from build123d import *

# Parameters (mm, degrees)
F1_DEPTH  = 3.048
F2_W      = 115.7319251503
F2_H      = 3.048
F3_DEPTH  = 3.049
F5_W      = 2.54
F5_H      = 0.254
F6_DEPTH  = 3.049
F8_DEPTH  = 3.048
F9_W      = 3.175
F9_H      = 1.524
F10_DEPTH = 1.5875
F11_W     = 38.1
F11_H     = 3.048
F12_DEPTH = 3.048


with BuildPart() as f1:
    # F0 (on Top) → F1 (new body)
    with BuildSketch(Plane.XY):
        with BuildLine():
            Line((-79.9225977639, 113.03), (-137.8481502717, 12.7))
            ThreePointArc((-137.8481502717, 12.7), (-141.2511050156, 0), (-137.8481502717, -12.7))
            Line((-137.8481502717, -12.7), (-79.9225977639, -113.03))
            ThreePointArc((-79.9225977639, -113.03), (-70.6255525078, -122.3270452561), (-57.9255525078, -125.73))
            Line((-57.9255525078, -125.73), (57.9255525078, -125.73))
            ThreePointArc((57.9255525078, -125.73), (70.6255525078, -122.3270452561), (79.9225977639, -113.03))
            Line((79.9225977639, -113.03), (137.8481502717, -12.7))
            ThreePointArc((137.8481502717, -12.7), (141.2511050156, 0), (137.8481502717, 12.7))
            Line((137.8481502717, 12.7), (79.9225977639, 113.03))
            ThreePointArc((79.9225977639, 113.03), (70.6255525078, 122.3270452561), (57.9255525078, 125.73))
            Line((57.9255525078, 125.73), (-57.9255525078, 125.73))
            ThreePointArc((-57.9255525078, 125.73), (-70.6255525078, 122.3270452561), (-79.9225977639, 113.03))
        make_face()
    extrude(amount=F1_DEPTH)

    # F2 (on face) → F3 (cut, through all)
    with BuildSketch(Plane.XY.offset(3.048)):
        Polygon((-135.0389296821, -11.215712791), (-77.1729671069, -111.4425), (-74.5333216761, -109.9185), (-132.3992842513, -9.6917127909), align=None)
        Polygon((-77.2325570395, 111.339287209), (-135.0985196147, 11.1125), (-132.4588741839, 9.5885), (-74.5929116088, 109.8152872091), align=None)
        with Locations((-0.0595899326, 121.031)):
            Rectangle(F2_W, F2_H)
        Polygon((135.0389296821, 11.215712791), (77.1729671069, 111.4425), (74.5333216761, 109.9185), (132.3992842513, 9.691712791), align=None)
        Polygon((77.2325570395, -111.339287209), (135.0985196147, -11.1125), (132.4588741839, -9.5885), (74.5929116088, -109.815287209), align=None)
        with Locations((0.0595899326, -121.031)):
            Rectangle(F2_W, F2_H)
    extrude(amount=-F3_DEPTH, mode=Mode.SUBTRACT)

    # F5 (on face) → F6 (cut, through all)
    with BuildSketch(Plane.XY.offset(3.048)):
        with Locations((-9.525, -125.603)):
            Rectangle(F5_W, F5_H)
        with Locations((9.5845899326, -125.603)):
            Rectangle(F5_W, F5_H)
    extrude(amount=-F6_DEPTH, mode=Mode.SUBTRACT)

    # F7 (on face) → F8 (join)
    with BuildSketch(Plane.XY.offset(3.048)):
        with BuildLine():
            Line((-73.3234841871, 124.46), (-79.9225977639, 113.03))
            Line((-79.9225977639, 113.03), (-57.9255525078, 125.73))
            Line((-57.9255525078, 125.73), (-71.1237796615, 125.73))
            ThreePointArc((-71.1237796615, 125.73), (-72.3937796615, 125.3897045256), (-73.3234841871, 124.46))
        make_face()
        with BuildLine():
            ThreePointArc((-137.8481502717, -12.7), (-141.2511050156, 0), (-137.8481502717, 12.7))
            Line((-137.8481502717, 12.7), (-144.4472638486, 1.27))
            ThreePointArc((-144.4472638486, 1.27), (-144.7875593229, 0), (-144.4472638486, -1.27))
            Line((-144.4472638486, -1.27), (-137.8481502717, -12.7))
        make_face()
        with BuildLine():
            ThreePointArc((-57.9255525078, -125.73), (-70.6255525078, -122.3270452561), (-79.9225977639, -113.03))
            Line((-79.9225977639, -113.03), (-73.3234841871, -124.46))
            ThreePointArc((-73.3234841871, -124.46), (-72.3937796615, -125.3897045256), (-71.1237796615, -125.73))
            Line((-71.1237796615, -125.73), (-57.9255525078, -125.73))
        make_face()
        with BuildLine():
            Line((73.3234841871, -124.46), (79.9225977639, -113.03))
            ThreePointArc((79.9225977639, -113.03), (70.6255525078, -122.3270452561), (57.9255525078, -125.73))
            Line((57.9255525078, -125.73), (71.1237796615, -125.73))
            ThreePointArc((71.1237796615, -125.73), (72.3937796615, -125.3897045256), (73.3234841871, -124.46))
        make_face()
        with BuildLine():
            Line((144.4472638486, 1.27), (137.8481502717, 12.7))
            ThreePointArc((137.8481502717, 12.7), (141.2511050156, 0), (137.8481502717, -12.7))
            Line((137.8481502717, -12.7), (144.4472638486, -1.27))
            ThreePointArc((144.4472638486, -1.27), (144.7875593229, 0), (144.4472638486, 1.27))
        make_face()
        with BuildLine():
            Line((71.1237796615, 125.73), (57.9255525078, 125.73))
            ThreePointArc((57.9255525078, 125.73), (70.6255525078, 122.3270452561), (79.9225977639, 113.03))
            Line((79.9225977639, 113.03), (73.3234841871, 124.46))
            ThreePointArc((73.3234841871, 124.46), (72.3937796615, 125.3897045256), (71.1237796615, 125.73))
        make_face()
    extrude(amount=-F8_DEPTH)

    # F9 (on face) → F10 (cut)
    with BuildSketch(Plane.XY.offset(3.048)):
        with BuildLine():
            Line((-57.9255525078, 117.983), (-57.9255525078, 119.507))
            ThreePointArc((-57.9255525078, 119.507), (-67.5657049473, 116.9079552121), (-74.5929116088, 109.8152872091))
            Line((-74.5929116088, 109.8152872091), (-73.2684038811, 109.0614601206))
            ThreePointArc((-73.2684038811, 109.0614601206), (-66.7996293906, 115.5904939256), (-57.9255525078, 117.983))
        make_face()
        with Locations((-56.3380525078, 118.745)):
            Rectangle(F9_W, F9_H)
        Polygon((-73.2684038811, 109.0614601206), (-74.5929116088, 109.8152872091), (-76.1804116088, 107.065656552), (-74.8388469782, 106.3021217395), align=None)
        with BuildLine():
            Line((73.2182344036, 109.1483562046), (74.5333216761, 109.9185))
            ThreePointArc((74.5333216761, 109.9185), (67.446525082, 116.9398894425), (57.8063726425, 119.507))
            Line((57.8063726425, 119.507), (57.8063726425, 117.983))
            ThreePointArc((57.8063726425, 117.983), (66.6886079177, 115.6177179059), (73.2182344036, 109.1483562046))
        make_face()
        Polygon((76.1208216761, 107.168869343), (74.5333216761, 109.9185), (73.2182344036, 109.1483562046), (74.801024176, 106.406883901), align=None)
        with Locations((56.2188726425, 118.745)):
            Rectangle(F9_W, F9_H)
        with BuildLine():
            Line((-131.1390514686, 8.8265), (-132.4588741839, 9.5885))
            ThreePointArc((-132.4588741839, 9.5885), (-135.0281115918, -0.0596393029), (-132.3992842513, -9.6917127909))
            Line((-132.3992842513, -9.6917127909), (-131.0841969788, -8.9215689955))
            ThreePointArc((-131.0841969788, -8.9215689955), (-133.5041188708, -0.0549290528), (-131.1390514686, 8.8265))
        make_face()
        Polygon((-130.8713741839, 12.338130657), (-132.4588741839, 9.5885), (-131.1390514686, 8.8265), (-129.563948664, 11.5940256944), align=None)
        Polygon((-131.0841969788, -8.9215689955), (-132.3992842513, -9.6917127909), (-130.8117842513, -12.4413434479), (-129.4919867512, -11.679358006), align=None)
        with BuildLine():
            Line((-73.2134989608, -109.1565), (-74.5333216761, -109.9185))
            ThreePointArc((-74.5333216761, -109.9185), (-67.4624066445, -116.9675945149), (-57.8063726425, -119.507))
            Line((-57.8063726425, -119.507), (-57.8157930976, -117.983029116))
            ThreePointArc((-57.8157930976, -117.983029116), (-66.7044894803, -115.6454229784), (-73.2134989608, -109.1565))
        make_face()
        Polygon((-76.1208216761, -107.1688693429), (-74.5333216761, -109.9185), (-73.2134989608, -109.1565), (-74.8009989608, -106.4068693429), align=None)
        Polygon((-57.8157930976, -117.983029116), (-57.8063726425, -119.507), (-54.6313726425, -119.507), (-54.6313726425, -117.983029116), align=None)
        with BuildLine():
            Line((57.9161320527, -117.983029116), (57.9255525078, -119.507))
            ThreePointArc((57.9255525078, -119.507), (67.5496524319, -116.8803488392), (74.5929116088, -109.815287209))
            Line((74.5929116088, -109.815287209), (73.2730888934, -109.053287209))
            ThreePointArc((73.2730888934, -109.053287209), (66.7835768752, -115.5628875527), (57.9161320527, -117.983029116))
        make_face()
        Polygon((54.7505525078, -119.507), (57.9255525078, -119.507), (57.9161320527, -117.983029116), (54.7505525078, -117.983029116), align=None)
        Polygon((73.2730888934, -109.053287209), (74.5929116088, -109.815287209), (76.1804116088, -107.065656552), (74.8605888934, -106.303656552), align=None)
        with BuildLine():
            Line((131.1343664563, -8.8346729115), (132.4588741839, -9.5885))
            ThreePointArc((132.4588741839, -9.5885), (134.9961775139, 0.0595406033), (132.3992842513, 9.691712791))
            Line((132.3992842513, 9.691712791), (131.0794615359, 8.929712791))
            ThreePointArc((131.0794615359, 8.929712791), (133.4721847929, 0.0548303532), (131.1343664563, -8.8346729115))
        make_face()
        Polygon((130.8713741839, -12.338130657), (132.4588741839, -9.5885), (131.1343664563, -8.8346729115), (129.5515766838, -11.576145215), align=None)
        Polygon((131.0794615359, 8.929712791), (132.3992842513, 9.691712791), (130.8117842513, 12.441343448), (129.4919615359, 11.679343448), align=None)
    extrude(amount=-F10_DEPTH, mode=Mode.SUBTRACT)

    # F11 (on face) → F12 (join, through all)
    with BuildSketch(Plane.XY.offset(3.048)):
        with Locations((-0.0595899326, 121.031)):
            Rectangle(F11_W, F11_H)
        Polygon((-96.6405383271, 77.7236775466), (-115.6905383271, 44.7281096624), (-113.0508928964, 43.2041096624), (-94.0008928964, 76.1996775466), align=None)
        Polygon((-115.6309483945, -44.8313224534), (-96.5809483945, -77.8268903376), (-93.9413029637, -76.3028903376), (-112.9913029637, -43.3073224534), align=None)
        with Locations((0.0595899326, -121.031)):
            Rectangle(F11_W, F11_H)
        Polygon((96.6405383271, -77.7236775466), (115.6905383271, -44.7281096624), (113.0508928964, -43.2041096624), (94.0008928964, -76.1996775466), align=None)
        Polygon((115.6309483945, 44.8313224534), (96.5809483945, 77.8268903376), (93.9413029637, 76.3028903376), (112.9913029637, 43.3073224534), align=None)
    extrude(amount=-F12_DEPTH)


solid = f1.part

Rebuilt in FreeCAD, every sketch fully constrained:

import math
import FreeCAD as App
import Part
import Sketcher
from FreeCAD import Vector
Q = App.Units.Quantity

doc = App.newDocument("Part")
body = doc.addObject("PartDesign::Body", "Body")

# Sketch on XY plane
sketch1 = body.newObject("Sketcher::SketchObject", "Sketch")
sketch1.AttachmentSupport = (doc.getObject("XY_Plane"), [""])
sketch1.MapMode = "FlatFace"
sketch1.addGeometry([
    Part.LineSegment(Vector(-79.922598, 113.03, 0), Vector(-137.84815, 12.7, 0)),  # 0
    Part.ArcOfCircle(Part.Circle(Vector(-115.851105, 0, 0), Vector(0, 0, 1), 25.4), math.radians(150), math.radians(210)),  # 1
    Part.LineSegment(Vector(-137.84815, -12.7, 0), Vector(-79.922598, -113.03, 0)),  # 2
    Part.ArcOfCircle(Part.Circle(Vector(-57.925553, -100.33, 0), Vector(0, 0, 1), 25.4), math.radians(-150), math.radians(-90)),  # 3
    Part.LineSegment(Vector(-57.925553, -125.73, 0), Vector(57.925553, -125.73, 0)),  # 4
    Part.ArcOfCircle(Part.Circle(Vector(57.925553, -100.33, 0), Vector(0, 0, 1), 25.4), math.radians(-90), math.radians(-30)),  # 5
    Part.LineSegment(Vector(79.922598, -113.03, 0), Vector(137.84815, -12.7, 0)),  # 6
    Part.ArcOfCircle(Part.Circle(Vector(115.851105, 0, 0), Vector(0, 0, 1), 25.4), math.radians(-30), math.radians(30)),  # 7
    Part.LineSegment(Vector(137.84815, 12.7, 0), Vector(79.922598, 113.03, 0)),  # 8
    Part.ArcOfCircle(Part.Circle(Vector(57.925553, 100.33, 0), Vector(0, 0, 1), 25.4), math.radians(30), math.radians(90)),  # 9
    Part.LineSegment(Vector(57.925553, 125.73, 0), Vector(-57.925553, 125.73, 0)),  # 10
    Part.ArcOfCircle(Part.Circle(Vector(-57.925553, 100.33, 0), Vector(0, 0, 1), 25.4), math.radians(90), math.radians(150)),  # 11
], False)
sketch1.addConstraint([
    Sketcher.Constraint("Tangent", 0, 2, 1, 1),
    Sketcher.Constraint("Tangent", 1, 2, 2, 1),
    Sketcher.Constraint("Tangent", 2, 2, 3, 1),
    Sketcher.Constraint("Tangent", 3, 2, 4, 1),
    Sketcher.Constraint("Tangent", 4, 2, 5, 1),
    Sketcher.Constraint("Tangent", 5, 2, 6, 1),
    Sketcher.Constraint("Tangent", 6, 2, 7, 1),
    Sketcher.Constraint("Tangent", 7, 2, 8, 1),
    Sketcher.Constraint("Tangent", 8, 2, 9, 1),
    Sketcher.Constraint("Tangent", 9, 2, 10, 1),
    Sketcher.Constraint("Tangent", 10, 2, 11, 1),
    Sketcher.Constraint("Tangent", 11, 2, 0, 1),
    Sketcher.Constraint("Horizontal", 4),
    Sketcher.Constraint("Horizontal", 10),
    Sketcher.Constraint("Equal", 1, 3),
    Sketcher.Constraint("Equal", 3, 5),
    Sketcher.Constraint("Equal", 5, 7),
    Sketcher.Constraint("Equal", 7, 9),
    Sketcher.Constraint("Equal", 9, 11),
    Sketcher.Constraint("Symmetric", 1, 3, 7, 3, -1, 1),
    Sketcher.Constraint("Symmetric", 3, 3, 9, 3, -1, 1),
    Sketcher.Constraint("Symmetric", 2, 2, 5, 2, -2),
    Sketcher.Constraint("Parallel", 0, 6),
    Sketcher.Constraint("Radius", 1, Q("1 in")),
    Sketcher.Constraint("Angle", 0, Q("-120 deg")),
    Sketcher.Constraint("DistanceY", 5, 3, 9, 3, Q("7.9 in")),
    Sketcher.Constraint("DistanceX", 4, 1, 4, 2, 115.851105),
])
pad1 = body.newObject("PartDesign::Pad", "Pad")
pad1.Profile = sketch1
pad1.Length = Q("0.12 in")

# Sketch on XY plane
sketch2 = body.newObject("Sketcher::SketchObject", "Sketch001")
sketch2.AttachmentSupport = (doc.getObject("XY_Plane"), [""])
sketch2.MapMode = "FlatFace"
sketch2.AttachmentOffset = App.Placement(Vector(0, 0, 0.12 * 25.4), App.Rotation())
sketch2.addGeometry([
    Part.LineSegment(Vector(-135.03893, -11.215713, 0), Vector(-77.172967, -111.4425, 0)),  # 0
    Part.LineSegment(Vector(-77.172967, -111.4425, 0), Vector(-74.533322, -109.9185, 0)),  # 1
    Part.LineSegment(Vector(-74.533322, -109.9185, 0), Vector(-132.399284, -9.691713, 0)),  # 2
    Part.LineSegment(Vector(-132.399284, -9.691713, 0), Vector(-135.03893, -11.215713, 0)),  # 3
    Part.LineSegment(Vector(-77.232557, 111.339287, 0), Vector(-135.09852, 11.1125, 0)),  # 4
    Part.LineSegment(Vector(-135.09852, 11.1125, 0), Vector(-132.458874, 9.5885, 0)),  # 5
    Part.LineSegment(Vector(-132.458874, 9.5885, 0), Vector(-74.592912, 109.815287, 0)),  # 6
    Part.LineSegment(Vector(-74.592912, 109.815287, 0), Vector(-77.232557, 111.339287, 0)),  # 7
    Part.LineSegment(Vector(-57.925553, 122.555, 0), Vector(-57.925553, 119.507, 0)),  # 8
    Part.LineSegment(Vector(-57.925553, 119.507, 0), Vector(57.806373, 119.507, 0)),  # 9
    Part.LineSegment(Vector(57.806373, 119.507, 0), Vector(57.806373, 122.555, 0)),  # 10
    Part.LineSegment(Vector(57.806373, 122.555, 0), Vector(-57.925553, 122.555, 0)),  # 11
    Part.LineSegment(Vector(135.03893, 11.215713, 0), Vector(77.172967, 111.4425, 0)),  # 12
    Part.LineSegment(Vector(77.172967, 111.4425, 0), Vector(74.533322, 109.9185, 0)),  # 13
    Part.LineSegment(Vector(74.533322, 109.9185, 0), Vector(132.399284, 9.691713, 0)),  # 14
    Part.LineSegment(Vector(132.399284, 9.691713, 0), Vector(135.03893, 11.215713, 0)),  # 15
    Part.LineSegment(Vector(77.232557, -111.339287, 0), Vector(135.09852, -11.1125, 0)),  # 16
    Part.LineSegment(Vector(135.09852, -11.1125, 0), Vector(132.458874, -9.5885, 0)),  # 17
    Part.LineSegment(Vector(132.458874, -9.5885, 0), Vector(74.592912, -109.815287, 0)),  # 18
    Part.LineSegment(Vector(74.592912, -109.815287, 0), Vector(77.232557, -111.339287, 0)),  # 19
    Part.LineSegment(Vector(-57.806373, -119.507, 0), Vector(-57.806373, -122.555, 0)),  # 20
    Part.LineSegment(Vector(-57.806373, -122.555, 0), Vector(57.925553, -122.555, 0)),  # 21
    Part.LineSegment(Vector(57.925553, -122.555, 0), Vector(57.925553, -119.507, 0)),  # 22
    Part.LineSegment(Vector(57.925553, -119.507, 0), Vector(-57.806373, -119.507, 0)),  # 23
], False)
sketch2.addConstraint([
    Sketcher.Constraint("Coincident", 0, 2, 1, 1),
    Sketcher.Constraint("Coincident", 1, 2, 2, 1),
    Sketcher.Constraint("Coincident", 2, 2, 3, 1),
    Sketcher.Constraint("Coincident", 3, 2, 0, 1),
    Sketcher.Constraint("Coincident", 4, 2, 5, 1),
    Sketcher.Constraint("Coincident", 5, 2, 6, 1),
    Sketcher.Constraint("Coincident", 6, 2, 7, 1),
    Sketcher.Constraint("Coincident", 7, 2, 4, 1),
    Sketcher.Constraint("Coincident", 8, 2, 9, 1),
    Sketcher.Constraint("Coincident", 9, 2, 10, 1),
    Sketcher.Constraint("Coincident", 10, 2, 11, 1),
    Sketcher.Constraint("Coincident", 11, 2, 8, 1),
    Sketcher.Constraint("Coincident", 12, 2, 13, 1),
    Sketcher.Constraint("Coincident", 13, 2, 14, 1),
    Sketcher.Constraint("Coincident", 14, 2, 15, 1),
    Sketcher.Constraint("Coincident", 15, 2, 12, 1),
    Sketcher.Constraint("Coincident", 16, 2, 17, 1),
    Sketcher.Constraint("Coincident", 17, 2, 18, 1),
    Sketcher.Constraint("Coincident", 18, 2, 19, 1),
    Sketcher.Constraint("Coincident", 19, 2, 16, 1),
    Sketcher.Constraint("Coincident", 20, 2, 21, 1),
    Sketcher.Constraint("Coincident", 21, 2, 22, 1),
    Sketcher.Constraint("Coincident", 22, 2, 23, 1),
    Sketcher.Constraint("Coincident", 23, 2, 20, 1),
    Sketcher.Constraint("Vertical", 8),
    Sketcher.Constraint("Horizontal", 9),
    Sketcher.Constraint("Vertical", 10),
    Sketcher.Constraint("Horizontal", 11),
    Sketcher.Constraint("Vertical", 20),
    Sketcher.Constraint("Horizontal", 21),
    Sketcher.Constraint("Vertical", 22),
    Sketcher.Constraint("Horizontal", 23),
    Sketcher.Constraint("Symmetric", 0, 2, 12, 2, -1, 1),
    Sketcher.Constraint("Symmetric", 1, 2, 13, 2, -1, 1),
    Sketcher.Constraint("Symmetric", 2, 2, 14, 2, -1, 1),
    Sketcher.Constraint("Symmetric", 3, 2, 15, 2, -1, 1),
    Sketcher.Constraint("Symmetric", 4, 2, 16, 2, -1, 1),
    Sketcher.Constraint("Symmetric", 5, 2, 17, 2, -1, 1),
    Sketcher.Constraint("Symmetric", 6, 2, 18, 2, -1, 1),
    Sketcher.Constraint("Symmetric", 7, 2, 19, 2, -1, 1),
    Sketcher.Constraint("Symmetric", 10, 2, 20, 2, -1, 1),
    Sketcher.Constraint("Symmetric", 8, 2, 22, 2, -1, 1),
    Sketcher.Constraint("Perpendicular", 0, 1),
    Sketcher.Constraint("Perpendicular", 1, 2),
    Sketcher.Constraint("Perpendicular", 2, 3),
    Sketcher.Constraint("Perpendicular", 4, 5),
    Sketcher.Constraint("Perpendicular", 5, 6),
    Sketcher.Constraint("Perpendicular", 6, 7),
    Sketcher.Constraint("Equal", 2, 4),
    Sketcher.Constraint("Equal", 3, 5),
    Sketcher.Constraint("Angle", 0, Q("-60 deg")),
    Sketcher.Constraint("Angle", 4, Q("-120 deg")),
    Sketcher.Constraint("DistanceY", 8, 2, 8, 1, Q("0.12 in")),
    Sketcher.Constraint("Distance", 1, Q("0.12 in")),
    Sketcher.Constraint("DistanceY", -1, 1, 4, 2, Q("0.4375 in")),
    Sketcher.Constraint("DistanceY", -1, 1, 8, 2, Q("4.705 in")),
    Sketcher.Constraint("DistanceY", 1, 2, 4, 2, Q("4.765 in")),
    Sketcher.Constraint("DistanceX", 9, 1, 9, 2, 115.731925),
    Sketcher.Constraint("DistanceX", 1, 2, -1, 1, 74.533322),
    Sketcher.Constraint("DistanceX", 3, 2, -1, 1, 135.03893),
    Sketcher.Constraint("DistanceX", 4, 2, -1, 1, 135.09852),
    Sketcher.Constraint("DistanceX", 6, 2, 8, 2, 16.667359),
])
pocket1 = body.newObject("PartDesign::Pocket", "Pocket")
pocket1.Profile = sketch2
pocket1.Type = "ThroughAll"

# Sketch on XY plane
sketch3 = body.newObject("Sketcher::SketchObject", "Sketch002")
sketch3.AttachmentSupport = (doc.getObject("XY_Plane"), [""])
sketch3.MapMode = "FlatFace"
sketch3.AttachmentOffset = App.Placement(Vector(0, 0, 0.12 * 25.4), App.Rotation())
sketch3.addGeometry([
    Part.LineSegment(Vector(-10.795, -125.476, 0), Vector(-10.795, -125.73, 0)),  # 0
    Part.LineSegment(Vector(-10.795, -125.73, 0), Vector(-8.255, -125.73, 0)),  # 1
    Part.LineSegment(Vector(-8.255, -125.73, 0), Vector(-8.255, -125.476, 0)),  # 2
    Part.LineSegment(Vector(-8.255, -125.476, 0), Vector(-10.795, -125.476, 0)),  # 3
    Part.LineSegment(Vector(8.31459, -125.476, 0), Vector(8.31459, -125.73, 0)),  # 4
    Part.LineSegment(Vector(8.31459, -125.73, 0), Vector(10.85459, -125.73, 0)),  # 5
    Part.LineSegment(Vector(10.85459, -125.73, 0), Vector(10.85459, -125.476, 0)),  # 6
    Part.LineSegment(Vector(10.85459, -125.476, 0), Vector(8.31459, -125.476, 0)),  # 7
], False)
sketch3.addConstraint([
    Sketcher.Constraint("Coincident", 0, 2, 1, 1),
    Sketcher.Constraint("Coincident", 1, 2, 2, 1),
    Sketcher.Constraint("Coincident", 2, 2, 3, 1),
    Sketcher.Constraint("Coincident", 3, 2, 0, 1),
    Sketcher.Constraint("Coincident", 4, 2, 5, 1),
    Sketcher.Constraint("Coincident", 5, 2, 6, 1),
    Sketcher.Constraint("Coincident", 6, 2, 7, 1),
    Sketcher.Constraint("Coincident", 7, 2, 4, 1),
    Sketcher.Constraint("Vertical", 0),
    Sketcher.Constraint("Horizontal", 1),
    Sketcher.Constraint("Vertical", 2),
    Sketcher.Constraint("Horizontal", 3),
    Sketcher.Constraint("Vertical", 4),
    Sketcher.Constraint("Horizontal", 5),
    Sketcher.Constraint("Vertical", 6),
    Sketcher.Constraint("Horizontal", 7),
    Sketcher.Constraint("Horizontal", 1, 2, 4, 2),
    Sketcher.Constraint("Horizontal", 3, 2, 6, 2),
    Sketcher.Constraint("Equal", 3, 5),
    Sketcher.Constraint("DistanceX", 1, 1, 1, 2, Q("0.1 in")),
    Sketcher.Constraint("DistanceY", 0, 2, 0, 1, Q("0.01 in")),
    Sketcher.Constraint("DistanceY", 0, 2, -1, 1, Q("4.95 in")),
    Sketcher.Constraint("DistanceX", 0, 2, -1, 1, Q("0.425 in")),
    Sketcher.Constraint("DistanceX", -1, 1, 4, 2, 8.31459),
])
pocket2 = body.newObject("PartDesign::Pocket", "Pocket001")
pocket2.Profile = sketch3
pocket2.Type = "ThroughAll"

# Sketch on XY plane
sketch4 = body.newObject("Sketcher::SketchObject", "Sketch003")
sketch4.AttachmentSupport = (doc.getObject("XY_Plane"), [""])
sketch4.MapMode = "FlatFace"
sketch4.AttachmentOffset = App.Placement(Vector(0, 0, 0.12 * 25.4), App.Rotation())
sketch4.addGeometry([
    Part.LineSegment(Vector(-73.323484, 124.46, 0), Vector(-79.922598, 113.03, 0)),  # 0
    Part.LineSegment(Vector(-79.922598, 113.03, 0), Vector(-57.925553, 125.73, 0)),  # 1
    Part.LineSegment(Vector(-57.925553, 125.73, 0), Vector(-71.12378, 125.73, 0)),  # 2
    Part.ArcOfCircle(Part.Circle(Vector(-71.12378, 123.19, 0), Vector(0, 0, 1), 2.54), math.radians(90), math.radians(150)),  # 3
    Part.ArcOfCircle(Part.Circle(Vector(-115.851105, 0, 0), Vector(0, 0, 1), 25.4), math.radians(150), math.radians(210)),  # 4
    Part.LineSegment(Vector(-137.84815, 12.7, 0), Vector(-144.447264, 1.27, 0)),  # 5
    Part.ArcOfCircle(Part.Circle(Vector(-142.247559, 0, 0), Vector(0, 0, 1), 2.54), math.radians(150), math.radians(210)),  # 6
    Part.LineSegment(Vector(-144.447264, -1.27, 0), Vector(-137.84815, -12.7, 0)),  # 7
    Part.ArcOfCircle(Part.Circle(Vector(-57.925553, -100.33, 0), Vector(0, 0, 1), 25.4), math.radians(-150), math.radians(-90)),  # 8
    Part.LineSegment(Vector(-79.922598, -113.03, 0), Vector(-73.323484, -124.46, 0)),  # 9
    Part.ArcOfCircle(Part.Circle(Vector(-71.12378, -123.19, 0), Vector(0, 0, 1), 2.54), math.radians(-150), math.radians(-90)),  # 10
    Part.LineSegment(Vector(-71.12378, -125.73, 0), Vector(-57.925553, -125.73, 0)),  # 11
    Part.LineSegment(Vector(73.323484, -124.46, 0), Vector(79.922598, -113.03, 0)),  # 12
    Part.ArcOfCircle(Part.Circle(Vector(57.925553, -100.33, 0), Vector(0, 0, 1), 25.4), math.radians(-90), math.radians(-30)),  # 13
    Part.LineSegment(Vector(57.925553, -125.73, 0), Vector(71.12378, -125.73, 0)),  # 14
    Part.ArcOfCircle(Part.Circle(Vector(71.12378, -123.19, 0), Vector(0, 0, 1), 2.54), math.radians(-90), math.radians(-30)),  # 15
    Part.LineSegment(Vector(144.447264, 1.27, 0), Vector(137.84815, 12.7, 0)),  # 16
    Part.ArcOfCircle(Part.Circle(Vector(115.851105, 0, 0), Vector(0, 0, 1), 25.4), math.radians(-30), math.radians(30)),  # 17
    Part.LineSegment(Vector(137.84815, -12.7, 0), Vector(144.447264, -1.27, 0)),  # 18
    Part.ArcOfCircle(Part.Circle(Vector(142.247559, 0, 0), Vector(0, 0, 1), 2.54), math.radians(-30), math.radians(30)),  # 19
    Part.LineSegment(Vector(71.12378, 125.73, 0), Vector(57.925553, 125.73, 0)),  # 20
    Part.ArcOfCircle(Part.Circle(Vector(57.925553, 100.33, 0), Vector(0, 0, 1), 25.4), math.radians(30), math.radians(90)),  # 21
    Part.LineSegment(Vector(79.922598, 113.03, 0), Vector(73.323484, 124.46, 0)),  # 22
    Part.ArcOfCircle(Part.Circle(Vector(71.12378, 123.19, 0), Vector(0, 0, 1), 2.54), math.radians(30), math.radians(90)),  # 23
], False)
sketch4.addConstraint([
    Sketcher.Constraint("Coincident", 0, 2, 1, 1),
    Sketcher.Constraint("Coincident", 1, 2, 2, 1),
    Sketcher.Constraint("Tangent", 2, 2, 3, 1),
    Sketcher.Constraint("Tangent", 3, 2, 0, 1),
    Sketcher.Constraint("Tangent", 4, 1, 5, 1),
    Sketcher.Constraint("Tangent", 5, 2, 6, 1),
    Sketcher.Constraint("Tangent", 6, 2, 7, 1),
    Sketcher.Constraint("Tangent", 7, 2, 4, 2),
    Sketcher.Constraint("Tangent", 8, 1, 9, 1),
    Sketcher.Constraint("Tangent", 9, 2, 10, 1),
    Sketcher.Constraint("Tangent", 10, 2, 11, 1),
    Sketcher.Constraint("Tangent", 11, 2, 8, 2),
    Sketcher.Constraint("Tangent", 12, 2, 13, 2),
    Sketcher.Constraint("Tangent", 13, 1, 14, 1),
    Sketcher.Constraint("Tangent", 14, 2, 15, 1),
    Sketcher.Constraint("Tangent", 15, 2, 12, 1),
    Sketcher.Constraint("Tangent", 16, 2, 17, 2),
    Sketcher.Constraint("Tangent", 17, 1, 18, 1),
    Sketcher.Constraint("Tangent", 18, 2, 19, 1),
    Sketcher.Constraint("Tangent", 19, 2, 16, 1),
    Sketcher.Constraint("Tangent", 20, 2, 21, 2),
    Sketcher.Constraint("Tangent", 21, 1, 22, 1),
    Sketcher.Constraint("Tangent", 22, 2, 23, 1),
    Sketcher.Constraint("Tangent", 23, 2, 20, 1),
    Sketcher.Constraint("Horizontal", 2),
    Sketcher.Constraint("Horizontal", 11),
    Sketcher.Constraint("Horizontal", 14),
    Sketcher.Constraint("Horizontal", 20),
    Sketcher.Constraint("Equal", 3, 6),
    Sketcher.Constraint("Equal", 4, 8),
    Sketcher.Constraint("Equal", 6, 10),
    Sketcher.Constraint("Equal", 8, 13),
    Sketcher.Constraint("Equal", 10, 15),
    Sketcher.Constraint("Equal", 13, 17),
    Sketcher.Constraint("Equal", 15, 19),
    Sketcher.Constraint("Equal", 17, 21),
    Sketcher.Constraint("Equal", 19, 23),
    Sketcher.Constraint("Symmetric", 3, 3, 15, 3, -1, 1),
    Sketcher.Constraint("Symmetric", 4, 3, 17, 3, -1, 1),
    Sketcher.Constraint("Symmetric", 6, 3, 19, 3, -1, 1),
    Sketcher.Constraint("Symmetric", 8, 3, 21, 3, -1, 1),
    Sketcher.Constraint("Symmetric", 0, 2, 12, 2, -1, 1),
    Sketcher.Constraint("Symmetric", 8, 3, 13, 3, -2),
    Sketcher.Constraint("Symmetric", 4, 1, 16, 2, -2),
    Sketcher.Constraint("Parallel", 0, 5),
    Sketcher.Constraint("Perpendicular", 1, 7),
    Sketcher.Constraint("Parallel", 7, 9),
    Sketcher.Constraint("Parallel", 16, 22),
    Sketcher.Constraint("Vertical", 8, 3, 1, 2),
    Sketcher.Constraint("Radius", 4, Q("1 in")),
    Sketcher.Constraint("Radius", 3, Q("0.1 in")),
    Sketcher.Constraint("DistanceY", 8, 3, 5, 2, Q("4 in")),
    Sketcher.Constraint("DistanceX", 5, 2, -1, 1, Q("5.6869002 in")),
    Sketcher.Constraint("DistanceX", 3, 3, -1, 1, 71.12378),
])
pad2 = body.newObject("PartDesign::Pad", "Pad001")
pad2.Profile = sketch4
pad2.Length = Q("0.12 in")
pad2.Reversed = True

# Sketch on XY plane
sketch5 = body.newObject("Sketcher::SketchObject", "Sketch004")
sketch5.AttachmentSupport = (doc.getObject("XY_Plane"), [""])
sketch5.MapMode = "FlatFace"
sketch5.AttachmentOffset = App.Placement(Vector(0, 0, 0.12 * 25.4), App.Rotation())
sketch5.addGeometry([
    Part.ArcOfCircle(Part.Circle(Vector(-57.925553, 100.329267, 0), Vector(0, 0, 1), 19.177733), math.radians(90), math.radians(150.35417)),  # 0
    Part.LineSegment(Vector(-74.592912, 109.815287, 0), Vector(-76.180412, 107.065657, 0)),  # 1
    Part.LineSegment(Vector(-76.180412, 107.065657, 0), Vector(-74.838847, 106.302122, 0)),  # 2
    Part.LineSegment(Vector(-74.838847, 106.302122, 0), Vector(-73.268404, 109.06146, 0)),  # 3
    Part.ArcOfCircle(Part.Circle(Vector(-57.925553, 100.329267, 0), Vector(0, 0, 1), 17.653733), math.radians(90), math.radians(150.35417)),  # 4
    Part.LineSegment(Vector(-57.925553, 117.983, 0), Vector(-54.750553, 117.983, 0)),  # 5
    Part.LineSegment(Vector(-54.750553, 117.983, 0), Vector(-54.750553, 119.507, 0)),  # 6
    Part.LineSegment(Vector(-54.750553, 119.507, 0), Vector(-57.925553, 119.507, 0)),  # 7
    Part.ArcOfCircle(Part.Circle(Vector(57.806373, 100.122834, 0), Vector(0, 0, 1), 19.384166), math.radians(30.35417), math.radians(90)),  # 8
    Part.LineSegment(Vector(57.806373, 119.507, 0), Vector(54.631373, 119.507, 0)),  # 9
    Part.LineSegment(Vector(54.631373, 119.507, 0), Vector(54.631373, 117.983, 0)),  # 10
    Part.LineSegment(Vector(54.631373, 117.983, 0), Vector(57.806373, 117.983, 0)),  # 11
    Part.ArcOfCircle(Part.Circle(Vector(57.806373, 100.122834, 0), Vector(0, 0, 1), 17.860166), math.radians(30.35417), math.radians(90)),  # 12
    Part.LineSegment(Vector(73.218234, 109.148356, 0), Vector(74.801024, 106.406884, 0)),  # 13
    Part.LineSegment(Vector(74.801024, 106.406884, 0), Vector(76.120822, 107.168869, 0)),  # 14
    Part.LineSegment(Vector(76.120822, 107.168869, 0), Vector(74.533322, 109.9185, 0)),  # 15
    Part.ArcOfCircle(Part.Circle(Vector(-115.85047, -0.000366, 0), Vector(0, 0, 1), 19.177733), math.radians(150), math.radians(210.35417)),  # 16
    Part.LineSegment(Vector(-132.399284, -9.691713, 0), Vector(-130.811784, -12.441343, 0)),  # 17
    Part.LineSegment(Vector(-130.811784, -12.441343, 0), Vector(-129.491987, -11.679358, 0)),  # 18
    Part.LineSegment(Vector(-129.491987, -11.679358, 0), Vector(-131.084197, -8.921569, 0)),  # 19
    Part.ArcOfCircle(Part.Circle(Vector(-115.85047, -0.000366, 0), Vector(0, 0, 1), 17.653733), math.radians(150), math.radians(210.35417)),  # 20
    Part.LineSegment(Vector(-131.139051, 8.8265, 0), Vector(-129.563949, 11.594026, 0)),  # 21
    Part.LineSegment(Vector(-129.563949, 11.594026, 0), Vector(-130.871374, 12.338131, 0)),  # 22
    Part.LineSegment(Vector(-130.871374, 12.338131, 0), Vector(-132.458874, 9.5885, 0)),  # 23
    Part.ArcOfCircle(Part.Circle(Vector(-57.924918, -100.329634, 0), Vector(0, 0, 1), 19.177733), math.radians(-150), math.radians(-89.64583)),  # 24
    Part.LineSegment(Vector(-57.806373, -119.507, 0), Vector(-54.631373, -119.507, 0)),  # 25
    Part.LineSegment(Vector(-54.631373, -119.507, 0), Vector(-54.631373, -117.983029, 0)),  # 26
    Part.LineSegment(Vector(-54.631373, -117.983029, 0), Vector(-57.815793, -117.983029, 0)),  # 27
    Part.ArcOfCircle(Part.Circle(Vector(-57.924918, -100.329634, 0), Vector(0, 0, 1), 17.653733), math.radians(-150), math.radians(-89.64583)),  # 28
    Part.LineSegment(Vector(-73.213499, -109.1565, 0), Vector(-74.800999, -106.406869, 0)),  # 29
    Part.LineSegment(Vector(-74.800999, -106.406869, 0), Vector(-76.120822, -107.168869, 0)),  # 30
    Part.LineSegment(Vector(-76.120822, -107.168869, 0), Vector(-74.533322, -109.9185, 0)),  # 31
    Part.ArcOfCircle(Part.Circle(Vector(57.805731, -100.123204, 0), Vector(0, 0, 1), 19.384166), math.radians(-89.64583), math.radians(-30)),  # 32
    Part.LineSegment(Vector(74.592912, -109.815287, 0), Vector(76.180412, -107.065657, 0)),  # 33
    Part.LineSegment(Vector(76.180412, -107.065657, 0), Vector(74.860589, -106.303657, 0)),  # 34
    Part.LineSegment(Vector(74.860589, -106.303657, 0), Vector(73.273089, -109.053287, 0)),  # 35
    Part.ArcOfCircle(Part.Circle(Vector(57.805731, -100.123204, 0), Vector(0, 0, 1), 17.860166), math.radians(-89.64583), math.radians(-30)),  # 36
    Part.LineSegment(Vector(57.916132, -117.983029, 0), Vector(54.750553, -117.983029, 0)),  # 37
    Part.LineSegment(Vector(54.750553, -117.983029, 0), Vector(54.750553, -119.507, 0)),  # 38
    Part.LineSegment(Vector(54.750553, -119.507, 0), Vector(57.925553, -119.507, 0)),  # 39
    Part.ArcOfCircle(Part.Circle(Vector(115.612104, -0.00037, 0), Vector(0, 0, 1), 19.384166), math.radians(-29.64583), math.radians(30)),  # 40
    Part.LineSegment(Vector(132.399284, 9.691713, 0), Vector(130.811784, 12.441343, 0)),  # 41
    Part.LineSegment(Vector(130.811784, 12.441343, 0), Vector(129.491962, 11.679343, 0)),  # 42
    Part.LineSegment(Vector(129.491962, 11.679343, 0), Vector(131.079462, 8.929713, 0)),  # 43
    Part.ArcOfCircle(Part.Circle(Vector(115.612104, -0.00037, 0), Vector(0, 0, 1), 17.860166), math.radians(-29.64583), math.radians(30)),  # 44
    Part.LineSegment(Vector(131.134366, -8.834673, 0), Vector(129.551577, -11.576145, 0)),  # 45
    Part.LineSegment(Vector(129.551577, -11.576145, 0), Vector(130.871374, -12.338131, 0)),  # 46
    Part.LineSegment(Vector(130.871374, -12.338131, 0), Vector(132.458874, -9.5885, 0)),  # 47
], False)
sketch5.addConstraint([
    Sketcher.Constraint("Coincident", 0, 2, 1, 1),
    Sketcher.Constraint("Coincident", 1, 2, 2, 1),
    Sketcher.Constraint("Coincident", 2, 2, 3, 1),
    Sketcher.Constraint("Tangent", 3, 2, 4, 2),
    Sketcher.Constraint("Tangent", 4, 1, 5, 1),
    Sketcher.Constraint("Coincident", 5, 2, 6, 1),
    Sketcher.Constraint("Coincident", 6, 2, 7, 1),
    Sketcher.Constraint("Tangent", 7, 2, 0, 1),
    Sketcher.Constraint("Tangent", 8, 2, 9, 1),
    Sketcher.Constraint("Coincident", 9, 2, 10, 1),
    Sketcher.Constraint("Coincident", 10, 2, 11, 1),
    Sketcher.Constraint("Tangent", 11, 2, 12, 2),
    Sketcher.Constraint("Coincident", 12, 1, 13, 1),
    Sketcher.Constraint("Coincident", 13, 2, 14, 1),
    Sketcher.Constraint("Coincident", 14, 2, 15, 1),
    Sketcher.Constraint("Coincident", 15, 2, 8, 1),
    Sketcher.Constraint("Coincident", 16, 2, 17, 1),
    Sketcher.Constraint("Coincident", 17, 2, 18, 1),
    Sketcher.Constraint("Coincident", 18, 2, 19, 1),
    Sketcher.Constraint("Coincident", 19, 2, 20, 2),
    Sketcher.Constraint("Coincident", 20, 1, 21, 1),
    Sketcher.Constraint("Coincident", 21, 2, 22, 1),
    Sketcher.Constraint("Coincident", 22, 2, 23, 1),
    Sketcher.Constraint("Tangent", 23, 2, 16, 1),
    Sketcher.Constraint("Coincident", 24, 2, 25, 1),
    Sketcher.Constraint("Coincident", 25, 2, 26, 1),
    Sketcher.Constraint("Coincident", 26, 2, 27, 1),
    Sketcher.Constraint("Coincident", 27, 2, 28, 2),
    Sketcher.Constraint("Tangent", 28, 1, 29, 1),
    Sketcher.Constraint("Coincident", 29, 2, 30, 1),
    Sketcher.Constraint("Coincident", 30, 2, 31, 1),
    Sketcher.Constraint("Tangent", 31, 2, 24, 1),
    Sketcher.Constraint("Tangent", 32, 2, 33, 1),
    Sketcher.Constraint("Coincident", 33, 2, 34, 1),
    Sketcher.Constraint("Coincident", 34, 2, 35, 1),
    Sketcher.Constraint("Tangent", 35, 2, 36, 2),
    Sketcher.Constraint("Coincident", 36, 1, 37, 1),
    Sketcher.Constraint("Coincident", 37, 2, 38, 1),
    Sketcher.Constraint("Coincident", 38, 2, 39, 1),
    Sketcher.Constraint("Coincident", 39, 2, 32, 1),
    Sketcher.Constraint("Tangent", 40, 2, 41, 1),
    Sketcher.Constraint("Coincident", 41, 2, 42, 1),
    Sketcher.Constraint("Coincident", 42, 2, 43, 1),
    Sketcher.Constraint("Tangent", 43, 2, 44, 2),
    Sketcher.Constraint("Coincident", 44, 1, 45, 1),
    Sketcher.Constraint("Coincident", 45, 2, 46, 1),
    Sketcher.Constraint("Coincident", 46, 2, 47, 1),
    Sketcher.Constraint("Coincident", 47, 2, 40, 1),
    Sketcher.Constraint("Horizontal", 5),
    Sketcher.Constraint("Vertical", 6),
    Sketcher.Constraint("Horizontal", 7),
    Sketcher.Constraint("Horizontal", 9),
    Sketcher.Constraint("Vertical", 10),
    Sketcher.Constraint("Horizontal", 11),
    Sketcher.Constraint("Horizontal", 25),
    Sketcher.Constraint("Vertical", 26),
    Sketcher.Constraint("Horizontal", 27),
    Sketcher.Constraint("Horizontal", 37),
    Sketcher.Constraint("Vertical", 38),
    Sketcher.Constraint("Horizontal", 39),
    Sketcher.Constraint("Coincident", 4, 3, 0, 3),
    Sketcher.Constraint("Coincident", 12, 3, 8, 3),
    Sketcher.Constraint("Coincident", 20, 3, 16, 3),
    Sketcher.Constraint("Coincident", 28, 3, 24, 3),
    Sketcher.Constraint("Coincident", 36, 3, 32, 3),
    Sketcher.Constraint("Coincident", 44, 3, 40, 3),
    Sketcher.Constraint("Equal", 0, 16),
    Sketcher.Constraint("Equal", 4, 20),
    Sketcher.Constraint("Equal", 16, 24),
    Sketcher.Constraint("Equal", 20, 28),
    Sketcher.Constraint("Equal", 8, 32),
    Sketcher.Constraint("Equal", 12, 36),
    Sketcher.Constraint("Equal", 32, 40),
    Sketcher.Constraint("Equal", 36, 44),
    Sketcher.Constraint("Symmetric", 8, 2, 24, 2, -1, 1),
    Sketcher.Constraint("Symmetric", 14, 2, 30, 2, -1, 1),
    Sketcher.Constraint("Symmetric", 15, 2, 31, 2, -1, 1),
    Sketcher.Constraint("Symmetric", 0, 2, 32, 2, -1, 1),
    Sketcher.Constraint("Symmetric", 1, 2, 33, 2, -1, 1),
    Sketcher.Constraint("Symmetric", 6, 2, 38, 2, -1, 1),
    Sketcher.Constraint("Symmetric", 16, 2, 40, 2, -1, 1),
    Sketcher.Constraint("Symmetric", 17, 2, 41, 2, -1, 1),
    Sketcher.Constraint("Symmetric", 22, 2, 46, 2, -1, 1),
    Sketcher.Constraint("Symmetric", 23, 2, 47, 2, -1, 1),
    Sketcher.Constraint("Perpendicular", 2, 3),
    Sketcher.Constraint("Perpendicular", 13, 14),
    Sketcher.Constraint("Perpendicular", 14, 15),
    Sketcher.Constraint("Parallel", 15, 17),
    Sketcher.Constraint("Perpendicular", 17, 18),
    Sketcher.Constraint("Perpendicular", 18, 19),
    Sketcher.Constraint("Parallel", 3, 21),
    Sketcher.Constraint("Perpendicular", 21, 22),
    Sketcher.Constraint("Parallel", 1, 23),
    Sketcher.Constraint("Parallel", 19, 29),
    Sketcher.Constraint("Perpendicular", 29, 30),
    Sketcher.Constraint("Perpendicular", 33, 34),
    Sketcher.Constraint("Perpendicular", 34, 35),
    Sketcher.Constraint("Perpendicular", 41, 42),
    Sketcher.Constraint("Perpendicular", 42, 43),
    Sketcher.Constraint("Parallel", 35, 45),
    Sketcher.Constraint("Perpendicular", 45, 46),
    Sketcher.Constraint("Horizontal", 7, 2, 8, 2),
    Sketcher.Constraint("Horizontal", 5, 2, 10, 2),
    Sketcher.Constraint("Horizontal", 27, 2, 36, 1),
    Sketcher.Constraint("Equal", 7, 9),
    Sketcher.Constraint("Equal", 11, 25),
    Sketcher.Constraint("Equal", 25, 39),
    Sketcher.Constraint("Equal", 1, 15),
    Sketcher.Constraint("Equal", 15, 17),
    Sketcher.Constraint("Equal", 14, 18),
    Sketcher.Constraint("Equal", 17, 23),
    Sketcher.Constraint("Equal", 13, 45),
    Sketcher.Constraint("Angle", 1, Q("-120 deg")),
    Sketcher.Constraint("Angle", 13, Q("-60 deg")),
    Sketcher.Constraint("DistanceY", 6, 1, 6, 2, Q("0.06 in")),
    Sketcher.Constraint("DistanceX", 5, 1, 5, 2, Q("0.125 in")),
    Sketcher.Constraint("DistanceY", 20, 1, 23, 2, Q("0.03 in")),
    Sketcher.Constraint("Distance", 1, Q("0.125 in")),
    Sketcher.Constraint("DistanceY", -1, 1, 4, 1, Q("4.645 in")),
    Sketcher.Constraint("DistanceY", -1, 1, 15, 2, Q("4.3275 in")),
    Sketcher.Constraint("DistanceY", -1, 1, 20, 1, Q("0.3475 in")),
    Sketcher.Constraint("Radius", 8, 19.384166),
    Sketcher.Constraint("DistanceX", 44, 1, 40, 2, Q("0.0497999 in")),
    Sketcher.Constraint("DistanceX", 27, 2, 27, 1, 3.18442),
    Sketcher.Constraint("DistanceX", 28, 1, -1, 1, 73.213499),
    Sketcher.Constraint("DistanceX", 16, 3, 32, 3, 173.656202),
    Sketcher.Constraint("Distance", 3, 3.174939),
    Sketcher.Constraint("DistanceX", 16, 3, -1, 1, 115.85047),
])
pocket3 = body.newObject("PartDesign::Pocket", "Pocket002")
pocket3.Profile = sketch5
pocket3.Length = Q("0.0625 in")

# Sketch on XY plane
sketch6 = body.newObject("Sketcher::SketchObject", "Sketch005")
sketch6.AttachmentSupport = (doc.getObject("XY_Plane"), [""])
sketch6.MapMode = "FlatFace"
sketch6.AttachmentOffset = App.Placement(Vector(0, 0, 0.12 * 25.4), App.Rotation())
sketch6.addGeometry([
    Part.LineSegment(Vector(-19.10959, 122.555, 0), Vector(-19.10959, 119.507, 0)),  # 0
    Part.LineSegment(Vector(-19.10959, 119.507, 0), Vector(18.99041, 119.507, 0)),  # 1
    Part.LineSegment(Vector(18.99041, 119.507, 0), Vector(18.99041, 122.555, 0)),  # 2
    Part.LineSegment(Vector(18.99041, 122.555, 0), Vector(-19.10959, 122.555, 0)),  # 3
    Part.LineSegment(Vector(-96.640538, 77.723678, 0), Vector(-115.690538, 44.72811, 0)),  # 4
    Part.LineSegment(Vector(-115.690538, 44.72811, 0), Vector(-113.050893, 43.20411, 0)),  # 5
    Part.LineSegment(Vector(-113.050893, 43.20411, 0), Vector(-94.000893, 76.199678, 0)),  # 6
    Part.LineSegment(Vector(-94.000893, 76.199678, 0), Vector(-96.640538, 77.723678, 0)),  # 7
    Part.LineSegment(Vector(-115.630948, -44.831322, 0), Vector(-96.580948, -77.82689, 0)),  # 8
    Part.LineSegment(Vector(-96.580948, -77.82689, 0), Vector(-93.941303, -76.30289, 0)),  # 9
    Part.LineSegment(Vector(-93.941303, -76.30289, 0), Vector(-112.991303, -43.307322, 0)),  # 10
    Part.LineSegment(Vector(-112.991303, -43.307322, 0), Vector(-115.630948, -44.831322, 0)),  # 11
    Part.LineSegment(Vector(-18.99041, -119.507, 0), Vector(-18.99041, -122.555, 0)),  # 12
    Part.LineSegment(Vector(-18.99041, -122.555, 0), Vector(19.10959, -122.555, 0)),  # 13
    Part.LineSegment(Vector(19.10959, -122.555, 0), Vector(19.10959, -119.507, 0)),  # 14
    Part.LineSegment(Vector(19.10959, -119.507, 0), Vector(-18.99041, -119.507, 0)),  # 15
    Part.LineSegment(Vector(96.640538, -77.723678, 0), Vector(115.690538, -44.72811, 0)),  # 16
    Part.LineSegment(Vector(115.690538, -44.72811, 0), Vector(113.050893, -43.20411, 0)),  # 17
    Part.LineSegment(Vector(113.050893, -43.20411, 0), Vector(94.000893, -76.199678, 0)),  # 18
    Part.LineSegment(Vector(94.000893, -76.199678, 0), Vector(96.640538, -77.723678, 0)),  # 19
    Part.LineSegment(Vector(115.630948, 44.831322, 0), Vector(96.580948, 77.82689, 0)),  # 20
    Part.LineSegment(Vector(96.580948, 77.82689, 0), Vector(93.941303, 76.30289, 0)),  # 21
    Part.LineSegment(Vector(93.941303, 76.30289, 0), Vector(112.991303, 43.307322, 0)),  # 22
    Part.LineSegment(Vector(112.991303, 43.307322, 0), Vector(115.630948, 44.831322, 0)),  # 23
], False)
sketch6.addConstraint([
    Sketcher.Constraint("Coincident", 0, 2, 1, 1),
    Sketcher.Constraint("Coincident", 1, 2, 2, 1),
    Sketcher.Constraint("Coincident", 2, 2, 3, 1),
    Sketcher.Constraint("Coincident", 3, 2, 0, 1),
    Sketcher.Constraint("Coincident", 4, 2, 5, 1),
    Sketcher.Constraint("Coincident", 5, 2, 6, 1),
    Sketcher.Constraint("Coincident", 6, 2, 7, 1),
    Sketcher.Constraint("Coincident", 7, 2, 4, 1),
    Sketcher.Constraint("Coincident", 8, 2, 9, 1),
    Sketcher.Constraint("Coincident", 9, 2, 10, 1),
    Sketcher.Constraint("Coincident", 10, 2, 11, 1),
    Sketcher.Constraint("Coincident", 11, 2, 8, 1),
    Sketcher.Constraint("Coincident", 12, 2, 13, 1),
    Sketcher.Constraint("Coincident", 13, 2, 14, 1),
    Sketcher.Constraint("Coincident", 14, 2, 15, 1),
    Sketcher.Constraint("Coincident", 15, 2, 12, 1),
    Sketcher.Constraint("Coincident", 16, 2, 17, 1),
    Sketcher.Constraint("Coincident", 17, 2, 18, 1),
    Sketcher.Constraint("Coincident", 18, 2, 19, 1),
    Sketcher.Constraint("Coincident", 19, 2, 16, 1),
    Sketcher.Constraint("Coincident", 20, 2, 21, 1),
    Sketcher.Constraint("Coincident", 21, 2, 22, 1),
    Sketcher.Constraint("Coincident", 22, 2, 23, 1),
    Sketcher.Constraint("Coincident", 23, 2, 20, 1),
    Sketcher.Constraint("Vertical", 0),
    Sketcher.Constraint("Horizontal", 1),
    Sketcher.Constraint("Vertical", 2),
    Sketcher.Constraint("Horizontal", 3),
    Sketcher.Constraint("Vertical", 12),
    Sketcher.Constraint("Horizontal", 13),
    Sketcher.Constraint("Vertical", 14),
    Sketcher.Constraint("Horizontal", 15),
    Sketcher.Constraint("Symmetric", 2, 2, 12, 2, -1, 1),
    Sketcher.Constraint("Symmetric", 0, 2, 14, 2, -1, 1),
    Sketcher.Constraint("Symmetric", 4, 2, 16, 2, -1, 1),
    Sketcher.Constraint("Symmetric", 5, 2, 17, 2, -1, 1),
    Sketcher.Constraint("Symmetric", 6, 2, 18, 2, -1, 1),
    Sketcher.Constraint("Symmetric", 7, 2, 19, 2, -1, 1),
    Sketcher.Constraint("Symmetric", 8, 2, 20, 2, -1, 1),
    Sketcher.Constraint("Symmetric", 9, 2, 21, 2, -1, 1),
    Sketcher.Constraint("Symmetric", 10, 2, 22, 2, -1, 1),
    Sketcher.Constraint("Symmetric", 11, 2, 23, 2, -1, 1),
    Sketcher.Constraint("Perpendicular", 4, 5),
    Sketcher.Constraint("Perpendicular", 5, 6),
    Sketcher.Constraint("Perpendicular", 6, 7),
    Sketcher.Constraint("Perpendicular", 8, 9),
    Sketcher.Constraint("Perpendicular", 9, 10),
    Sketcher.Constraint("Perpendicular", 10, 11),
    Sketcher.Constraint("Equal", 6, 8),
    Sketcher.Constraint("Equal", 7, 9),
    Sketcher.Constraint("DistanceX", 1, 1, 1, 2, Q("1.5 in")),
    Sketcher.Constraint("Angle", 4, Q("-120 deg")),
    Sketcher.Constraint("Angle", 8, Q("-60 deg")),
    Sketcher.Constraint("Distance", 4, Q("1.5 in")),
    Sketcher.Constraint("DistanceY", 0, 2, 0, 1, Q("0.12 in")),
    Sketcher.Constraint("Distance", 5, Q("0.12 in")),
    Sketcher.Constraint("DistanceY", -1, 1, 0, 2, Q("4.705 in")),
    Sketcher.Constraint("DistanceY", 8, 2, 5, 2, Q("4.765 in")),
    Sketcher.Constraint("DistanceX", 0, 2, -1, 1, 19.10959),
    Sketcher.Constraint("DistanceX", 4, 2, -1, 1, 115.690538),
    Sketcher.Constraint("DistanceY", -1, 1, 4, 2, 44.72811),
    Sketcher.Constraint("DistanceX", 8, 2, -1, 1, 96.580948),
])
pad3 = body.newObject("PartDesign::Pad", "Pad002")
pad3.Profile = sketch6
pad3.Type = "UpToLast"
pad3.Reversed = True

doc.recompute()
